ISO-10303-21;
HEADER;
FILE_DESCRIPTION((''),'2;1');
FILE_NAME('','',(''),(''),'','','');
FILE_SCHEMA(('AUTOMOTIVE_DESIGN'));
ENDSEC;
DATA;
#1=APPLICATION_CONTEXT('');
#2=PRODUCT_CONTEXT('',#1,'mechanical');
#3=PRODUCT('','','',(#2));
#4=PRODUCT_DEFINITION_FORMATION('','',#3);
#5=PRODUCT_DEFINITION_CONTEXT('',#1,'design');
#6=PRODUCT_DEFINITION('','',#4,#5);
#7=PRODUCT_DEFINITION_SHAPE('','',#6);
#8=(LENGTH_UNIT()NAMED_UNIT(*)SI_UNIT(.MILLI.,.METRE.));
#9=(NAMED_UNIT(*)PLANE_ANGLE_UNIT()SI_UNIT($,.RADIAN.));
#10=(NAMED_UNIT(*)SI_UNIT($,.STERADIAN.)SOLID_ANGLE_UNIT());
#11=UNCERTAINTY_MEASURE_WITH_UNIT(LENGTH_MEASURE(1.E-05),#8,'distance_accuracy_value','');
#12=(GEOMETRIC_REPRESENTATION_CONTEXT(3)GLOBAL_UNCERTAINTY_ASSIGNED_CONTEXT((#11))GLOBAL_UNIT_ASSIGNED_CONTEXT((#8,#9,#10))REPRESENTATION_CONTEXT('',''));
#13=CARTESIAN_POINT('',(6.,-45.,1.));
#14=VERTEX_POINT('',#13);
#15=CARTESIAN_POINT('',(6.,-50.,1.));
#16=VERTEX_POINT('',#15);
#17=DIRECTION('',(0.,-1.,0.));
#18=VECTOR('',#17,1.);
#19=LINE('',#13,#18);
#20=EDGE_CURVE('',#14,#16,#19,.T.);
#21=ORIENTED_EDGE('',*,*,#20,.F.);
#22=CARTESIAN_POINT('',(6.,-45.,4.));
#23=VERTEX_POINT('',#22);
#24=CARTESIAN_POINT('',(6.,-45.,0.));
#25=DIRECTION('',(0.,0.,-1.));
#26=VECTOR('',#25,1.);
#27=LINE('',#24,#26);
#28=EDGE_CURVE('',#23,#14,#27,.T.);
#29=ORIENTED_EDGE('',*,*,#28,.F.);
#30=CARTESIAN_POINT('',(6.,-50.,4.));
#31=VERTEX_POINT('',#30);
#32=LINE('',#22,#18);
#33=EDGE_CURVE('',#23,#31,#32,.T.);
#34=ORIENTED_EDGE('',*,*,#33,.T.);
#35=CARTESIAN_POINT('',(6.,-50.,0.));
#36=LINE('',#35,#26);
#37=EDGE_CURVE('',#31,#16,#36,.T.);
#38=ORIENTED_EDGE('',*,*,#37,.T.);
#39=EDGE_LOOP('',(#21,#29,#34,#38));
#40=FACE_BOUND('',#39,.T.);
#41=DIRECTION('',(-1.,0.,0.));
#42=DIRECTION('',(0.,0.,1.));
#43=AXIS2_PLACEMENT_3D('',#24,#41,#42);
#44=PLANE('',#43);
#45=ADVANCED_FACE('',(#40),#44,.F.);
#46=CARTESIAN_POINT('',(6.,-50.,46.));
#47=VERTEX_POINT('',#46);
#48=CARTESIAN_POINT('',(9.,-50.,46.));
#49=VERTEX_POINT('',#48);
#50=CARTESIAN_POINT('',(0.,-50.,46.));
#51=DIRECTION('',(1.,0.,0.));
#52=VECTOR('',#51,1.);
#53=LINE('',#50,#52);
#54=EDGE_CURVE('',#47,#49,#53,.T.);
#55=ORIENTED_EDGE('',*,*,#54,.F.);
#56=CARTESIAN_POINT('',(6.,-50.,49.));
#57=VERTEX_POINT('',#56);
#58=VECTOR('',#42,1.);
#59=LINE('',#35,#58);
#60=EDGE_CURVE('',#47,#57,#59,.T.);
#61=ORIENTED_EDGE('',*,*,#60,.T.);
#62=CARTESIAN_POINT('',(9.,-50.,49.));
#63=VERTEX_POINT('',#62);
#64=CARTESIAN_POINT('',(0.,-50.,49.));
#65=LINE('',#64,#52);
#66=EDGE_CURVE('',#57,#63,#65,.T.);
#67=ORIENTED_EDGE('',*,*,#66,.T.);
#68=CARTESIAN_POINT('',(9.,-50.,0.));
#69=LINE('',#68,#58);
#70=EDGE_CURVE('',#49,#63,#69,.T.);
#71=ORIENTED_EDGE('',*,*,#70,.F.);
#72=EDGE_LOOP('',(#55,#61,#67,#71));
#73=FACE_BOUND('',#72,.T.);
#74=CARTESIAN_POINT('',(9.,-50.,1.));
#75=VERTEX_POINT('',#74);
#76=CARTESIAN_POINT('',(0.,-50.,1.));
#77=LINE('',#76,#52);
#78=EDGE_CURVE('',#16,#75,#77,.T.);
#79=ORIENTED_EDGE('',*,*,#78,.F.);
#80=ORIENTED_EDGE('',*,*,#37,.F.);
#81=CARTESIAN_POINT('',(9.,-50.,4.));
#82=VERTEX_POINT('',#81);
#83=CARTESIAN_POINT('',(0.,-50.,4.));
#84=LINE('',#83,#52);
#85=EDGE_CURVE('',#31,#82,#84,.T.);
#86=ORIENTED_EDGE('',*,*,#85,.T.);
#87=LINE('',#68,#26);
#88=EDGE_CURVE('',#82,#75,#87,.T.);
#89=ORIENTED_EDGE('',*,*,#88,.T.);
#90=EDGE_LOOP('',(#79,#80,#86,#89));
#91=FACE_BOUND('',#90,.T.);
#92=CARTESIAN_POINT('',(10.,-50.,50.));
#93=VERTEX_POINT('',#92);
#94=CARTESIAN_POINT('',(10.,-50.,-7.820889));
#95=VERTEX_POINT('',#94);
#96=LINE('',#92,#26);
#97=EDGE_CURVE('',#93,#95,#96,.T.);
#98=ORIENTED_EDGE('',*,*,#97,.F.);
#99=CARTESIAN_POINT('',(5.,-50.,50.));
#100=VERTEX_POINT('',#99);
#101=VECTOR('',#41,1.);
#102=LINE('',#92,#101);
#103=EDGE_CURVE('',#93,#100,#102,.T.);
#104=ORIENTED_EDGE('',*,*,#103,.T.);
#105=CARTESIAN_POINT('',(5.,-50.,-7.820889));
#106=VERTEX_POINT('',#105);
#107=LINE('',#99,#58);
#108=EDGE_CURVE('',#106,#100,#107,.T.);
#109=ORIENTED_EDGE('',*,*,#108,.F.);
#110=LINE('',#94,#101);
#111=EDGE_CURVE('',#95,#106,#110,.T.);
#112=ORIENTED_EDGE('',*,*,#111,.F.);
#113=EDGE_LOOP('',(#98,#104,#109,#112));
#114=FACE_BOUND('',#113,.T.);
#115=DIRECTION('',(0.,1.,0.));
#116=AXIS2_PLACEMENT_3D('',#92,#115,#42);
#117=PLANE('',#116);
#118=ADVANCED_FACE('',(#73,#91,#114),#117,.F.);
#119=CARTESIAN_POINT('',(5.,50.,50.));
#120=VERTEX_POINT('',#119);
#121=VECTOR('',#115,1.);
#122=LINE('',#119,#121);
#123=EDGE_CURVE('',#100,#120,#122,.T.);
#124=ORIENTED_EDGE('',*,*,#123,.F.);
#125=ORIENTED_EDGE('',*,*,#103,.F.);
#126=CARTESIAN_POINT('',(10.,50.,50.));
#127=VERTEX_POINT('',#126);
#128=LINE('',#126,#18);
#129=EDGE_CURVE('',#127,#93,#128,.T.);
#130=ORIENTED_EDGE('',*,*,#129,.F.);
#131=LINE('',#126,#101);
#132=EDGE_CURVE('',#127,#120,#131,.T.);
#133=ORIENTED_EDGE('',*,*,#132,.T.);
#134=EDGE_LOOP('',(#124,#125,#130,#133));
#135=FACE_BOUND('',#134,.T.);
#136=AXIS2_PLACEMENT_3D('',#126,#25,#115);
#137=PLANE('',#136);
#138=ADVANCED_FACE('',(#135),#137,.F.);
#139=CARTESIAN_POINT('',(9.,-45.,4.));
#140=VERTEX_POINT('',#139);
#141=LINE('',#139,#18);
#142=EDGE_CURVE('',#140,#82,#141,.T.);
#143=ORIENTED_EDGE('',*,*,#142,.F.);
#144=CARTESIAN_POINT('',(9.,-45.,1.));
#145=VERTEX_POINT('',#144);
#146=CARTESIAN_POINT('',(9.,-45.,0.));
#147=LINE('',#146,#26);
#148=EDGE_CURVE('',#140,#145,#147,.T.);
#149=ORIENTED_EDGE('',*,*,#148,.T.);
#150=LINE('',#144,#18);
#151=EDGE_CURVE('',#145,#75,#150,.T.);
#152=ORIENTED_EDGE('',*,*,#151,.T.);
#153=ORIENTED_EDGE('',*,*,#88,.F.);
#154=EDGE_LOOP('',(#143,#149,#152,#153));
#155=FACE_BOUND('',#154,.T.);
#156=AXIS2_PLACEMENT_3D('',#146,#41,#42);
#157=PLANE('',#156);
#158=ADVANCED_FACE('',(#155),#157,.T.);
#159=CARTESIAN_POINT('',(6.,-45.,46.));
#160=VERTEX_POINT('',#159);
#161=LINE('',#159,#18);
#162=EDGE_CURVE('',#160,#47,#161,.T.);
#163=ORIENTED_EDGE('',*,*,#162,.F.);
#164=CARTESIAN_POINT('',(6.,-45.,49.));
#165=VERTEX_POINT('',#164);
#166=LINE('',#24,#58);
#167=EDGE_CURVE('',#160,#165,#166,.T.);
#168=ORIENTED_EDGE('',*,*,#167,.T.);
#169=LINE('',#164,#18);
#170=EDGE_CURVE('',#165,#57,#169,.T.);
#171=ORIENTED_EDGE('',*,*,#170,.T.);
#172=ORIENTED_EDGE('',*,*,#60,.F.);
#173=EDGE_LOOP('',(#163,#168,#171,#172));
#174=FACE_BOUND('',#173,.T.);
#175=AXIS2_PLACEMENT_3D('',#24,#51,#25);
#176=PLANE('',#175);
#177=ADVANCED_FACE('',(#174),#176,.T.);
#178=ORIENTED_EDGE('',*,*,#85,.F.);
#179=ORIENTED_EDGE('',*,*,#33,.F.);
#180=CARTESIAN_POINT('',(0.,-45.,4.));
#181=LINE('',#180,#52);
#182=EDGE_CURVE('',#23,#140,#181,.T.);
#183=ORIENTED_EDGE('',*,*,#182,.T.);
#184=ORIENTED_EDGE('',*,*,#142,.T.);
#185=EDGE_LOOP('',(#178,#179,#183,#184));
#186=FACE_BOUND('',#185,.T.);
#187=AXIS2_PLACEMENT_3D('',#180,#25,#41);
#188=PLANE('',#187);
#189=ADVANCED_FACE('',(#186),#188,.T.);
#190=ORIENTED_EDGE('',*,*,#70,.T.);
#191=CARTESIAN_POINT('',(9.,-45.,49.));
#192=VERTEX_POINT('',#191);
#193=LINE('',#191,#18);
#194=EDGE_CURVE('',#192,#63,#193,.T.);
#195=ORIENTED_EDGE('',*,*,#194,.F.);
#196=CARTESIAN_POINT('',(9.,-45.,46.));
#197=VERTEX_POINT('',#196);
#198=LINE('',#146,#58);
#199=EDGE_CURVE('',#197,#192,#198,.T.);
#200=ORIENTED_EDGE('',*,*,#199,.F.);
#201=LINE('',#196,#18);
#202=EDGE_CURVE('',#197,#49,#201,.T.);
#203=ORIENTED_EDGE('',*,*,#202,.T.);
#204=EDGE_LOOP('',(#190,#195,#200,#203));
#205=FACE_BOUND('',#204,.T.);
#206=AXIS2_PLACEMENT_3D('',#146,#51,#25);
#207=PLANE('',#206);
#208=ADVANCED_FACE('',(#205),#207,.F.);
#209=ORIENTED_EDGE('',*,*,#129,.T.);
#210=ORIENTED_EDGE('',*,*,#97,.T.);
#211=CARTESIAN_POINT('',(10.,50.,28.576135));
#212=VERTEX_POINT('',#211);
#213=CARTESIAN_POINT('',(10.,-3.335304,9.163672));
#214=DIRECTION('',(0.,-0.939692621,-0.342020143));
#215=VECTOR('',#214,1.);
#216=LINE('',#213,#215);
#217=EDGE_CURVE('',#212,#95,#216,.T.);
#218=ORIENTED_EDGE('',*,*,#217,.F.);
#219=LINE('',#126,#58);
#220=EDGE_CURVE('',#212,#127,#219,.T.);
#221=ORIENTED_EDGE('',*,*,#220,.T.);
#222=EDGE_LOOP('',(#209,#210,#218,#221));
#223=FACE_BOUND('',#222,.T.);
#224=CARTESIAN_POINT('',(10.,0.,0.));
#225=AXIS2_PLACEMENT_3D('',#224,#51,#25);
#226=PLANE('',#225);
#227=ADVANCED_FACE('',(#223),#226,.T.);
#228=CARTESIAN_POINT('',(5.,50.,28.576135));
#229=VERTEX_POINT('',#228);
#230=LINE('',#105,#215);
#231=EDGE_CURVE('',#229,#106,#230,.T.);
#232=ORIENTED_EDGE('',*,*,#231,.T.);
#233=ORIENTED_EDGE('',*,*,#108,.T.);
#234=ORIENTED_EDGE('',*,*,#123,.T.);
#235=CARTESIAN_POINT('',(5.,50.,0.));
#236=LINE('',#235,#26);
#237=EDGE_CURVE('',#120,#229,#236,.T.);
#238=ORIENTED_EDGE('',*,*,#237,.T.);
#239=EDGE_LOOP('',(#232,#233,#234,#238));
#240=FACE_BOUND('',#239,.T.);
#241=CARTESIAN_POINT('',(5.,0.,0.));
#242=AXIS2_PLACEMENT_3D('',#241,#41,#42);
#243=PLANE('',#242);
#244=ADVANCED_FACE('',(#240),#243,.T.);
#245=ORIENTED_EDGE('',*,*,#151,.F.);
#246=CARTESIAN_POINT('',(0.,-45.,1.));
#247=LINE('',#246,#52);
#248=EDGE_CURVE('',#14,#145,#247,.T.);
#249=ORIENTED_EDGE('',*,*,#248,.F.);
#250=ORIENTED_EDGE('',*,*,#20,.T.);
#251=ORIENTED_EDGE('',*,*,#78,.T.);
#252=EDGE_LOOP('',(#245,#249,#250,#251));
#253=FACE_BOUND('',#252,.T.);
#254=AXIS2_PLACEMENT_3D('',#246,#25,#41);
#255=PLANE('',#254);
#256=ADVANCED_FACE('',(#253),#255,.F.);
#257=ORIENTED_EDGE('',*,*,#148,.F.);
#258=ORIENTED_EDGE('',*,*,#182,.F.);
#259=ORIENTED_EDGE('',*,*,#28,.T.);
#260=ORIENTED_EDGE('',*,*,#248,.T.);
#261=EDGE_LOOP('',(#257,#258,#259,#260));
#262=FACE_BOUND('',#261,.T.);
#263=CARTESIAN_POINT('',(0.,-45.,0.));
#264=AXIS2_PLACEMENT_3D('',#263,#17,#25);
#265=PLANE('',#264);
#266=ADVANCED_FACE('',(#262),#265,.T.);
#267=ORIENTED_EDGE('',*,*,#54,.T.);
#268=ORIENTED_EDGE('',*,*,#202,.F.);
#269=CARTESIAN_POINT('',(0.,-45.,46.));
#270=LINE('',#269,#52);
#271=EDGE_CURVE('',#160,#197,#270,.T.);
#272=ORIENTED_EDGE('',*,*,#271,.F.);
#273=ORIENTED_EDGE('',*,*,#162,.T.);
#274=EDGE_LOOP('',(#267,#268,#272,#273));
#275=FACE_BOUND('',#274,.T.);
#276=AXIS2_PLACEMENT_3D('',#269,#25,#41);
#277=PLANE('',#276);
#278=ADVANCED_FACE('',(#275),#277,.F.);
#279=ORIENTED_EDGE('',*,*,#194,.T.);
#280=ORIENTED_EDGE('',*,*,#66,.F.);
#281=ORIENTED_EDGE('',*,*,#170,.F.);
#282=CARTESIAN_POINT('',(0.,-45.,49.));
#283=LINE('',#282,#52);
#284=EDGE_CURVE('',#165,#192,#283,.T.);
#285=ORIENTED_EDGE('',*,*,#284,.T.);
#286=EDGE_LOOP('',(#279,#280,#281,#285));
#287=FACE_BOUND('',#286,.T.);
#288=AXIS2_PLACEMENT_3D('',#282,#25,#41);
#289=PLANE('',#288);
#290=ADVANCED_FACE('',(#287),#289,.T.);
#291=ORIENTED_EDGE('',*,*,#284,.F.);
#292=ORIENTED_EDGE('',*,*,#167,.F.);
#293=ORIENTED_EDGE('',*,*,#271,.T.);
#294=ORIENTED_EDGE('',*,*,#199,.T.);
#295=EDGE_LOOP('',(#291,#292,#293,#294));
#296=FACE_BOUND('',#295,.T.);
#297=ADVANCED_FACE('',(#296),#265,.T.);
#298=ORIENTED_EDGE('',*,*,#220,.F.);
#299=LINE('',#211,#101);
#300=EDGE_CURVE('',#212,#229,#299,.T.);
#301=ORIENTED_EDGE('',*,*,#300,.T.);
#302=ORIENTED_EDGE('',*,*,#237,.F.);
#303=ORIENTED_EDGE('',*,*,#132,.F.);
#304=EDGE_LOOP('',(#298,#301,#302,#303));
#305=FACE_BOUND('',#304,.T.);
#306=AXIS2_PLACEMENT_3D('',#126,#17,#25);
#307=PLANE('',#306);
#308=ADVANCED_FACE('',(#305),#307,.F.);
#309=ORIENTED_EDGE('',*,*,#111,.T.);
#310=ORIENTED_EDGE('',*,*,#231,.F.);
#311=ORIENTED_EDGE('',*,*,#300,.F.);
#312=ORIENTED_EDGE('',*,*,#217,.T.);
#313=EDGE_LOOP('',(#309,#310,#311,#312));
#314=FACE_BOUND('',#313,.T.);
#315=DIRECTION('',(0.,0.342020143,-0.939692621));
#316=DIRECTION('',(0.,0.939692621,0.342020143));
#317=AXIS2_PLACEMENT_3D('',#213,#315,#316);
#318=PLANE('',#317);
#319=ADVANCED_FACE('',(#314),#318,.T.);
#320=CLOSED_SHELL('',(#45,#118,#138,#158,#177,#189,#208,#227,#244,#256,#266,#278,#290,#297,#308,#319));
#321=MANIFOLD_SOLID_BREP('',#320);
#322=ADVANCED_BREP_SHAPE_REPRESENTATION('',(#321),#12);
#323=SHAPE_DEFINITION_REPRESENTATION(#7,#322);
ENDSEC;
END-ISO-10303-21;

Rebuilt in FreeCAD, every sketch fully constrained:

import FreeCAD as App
import Part
import Sketcher

V = App.Vector
Q = App.Units.Quantity


def add_polygon(sketch, points):
    """Adds a closed chain of lines whose ends are joined by coincident constraints."""
    first, n = sketch.GeometryCount, len(points)
    for a, b in zip(points, points[1:] + points[:1]):
        sketch.addGeometry(Part.LineSegment(App.Vector(*a, 0), App.Vector(*b, 0)), False)
    for i in range(n):
        sketch.addConstraint(Sketcher.Constraint("Coincident", first + i, 2, first + (i + 1) % n, 1))

doc = App.newDocument("Part")
params = doc.addObject("Spreadsheet::Sheet", "Params")
for row, (alias, value) in enumerate([
    ("sketch1_width", "100 mm"),
    ("pad1_length", "10 mm"),
    ("sketch2_height", "5 mm"),
    ("pocket1_length", "5 mm"),
    ("sketch3_width", "100 mm"),
    ("pocket2_length", "10 mm"),
    ("sketch4_width", "100 mm"),
    ("pocket3_length", "5 mm"),
    ("sketch5_width", "3 mm"),
    ("pocket4_length", "5 mm"),
], start=1):
    params.set(f"A{row}", alias)
    params.set(f"B{row}", "=" + value)
    params.setAlias(f"B{row}", alias)

body = doc.addObject("PartDesign::Body", "Body")

sketch1 = body.newObject("Sketcher::SketchObject", "Sketch")
sketch1.AttachmentSupport = (doc.getObject("YZ_Plane"), [""])
sketch1.MapMode = "FlatFace"
add_polygon(sketch1, [(50, 50), (-50, 50), (-50, -50), (50, -50)])
sketch1.addConstraint([
    Sketcher.Constraint("Horizontal", 0),
    Sketcher.Constraint("Vertical", 1),
    Sketcher.Constraint("Horizontal", 2),
    Sketcher.Constraint("Vertical", 3),
    Sketcher.Constraint("Symmetric", 0, 2, 2, 2, -1, 1),
    Sketcher.Constraint("Equal", 2, 1),
    Sketcher.Constraint("DistanceX", 0, 2, 0, 1, 100.0),
])
sketch1.setExpression("Constraints[10]", "Params.sketch1_width")
pad1 = body.newObject("PartDesign::Pad", "Pad")
pad1.Profile = sketch1
pad1.setExpression("Length", "Params.pad1_length")

sketch2 = body.newObject("Sketcher::SketchObject", "Sketch001")
sketch2.AttachmentSupport = (doc.getObject("YZ_Plane"), [""])
sketch2.MapMode = "FlatFace"
add_polygon(sketch2, [(50, 33.897023), (-45, -0.680149), (-45, 4.319851), (50, 38.897023)])
sketch2.addConstraint([
    Sketcher.Constraint("Vertical", 1),
    Sketcher.Constraint("Vertical", 3),
    Sketcher.Constraint("Parallel", 0, 2),
    Sketcher.Constraint("DistanceY", 1, 1, 1, 2, 5.0),
    Sketcher.Constraint("Angle", 0, Q("-160 deg")),
    Sketcher.Constraint("DistanceX", 0, 2, -1, 1, 45.0),
    Sketcher.Constraint("DistanceX", -1, 1, 2, 2, 50.0),
    Sketcher.Constraint("DistanceY", 0, 2, -1, 1, 0.680149),
])
sketch2.setExpression("Constraints[7]", "Params.sketch2_height")
pocket1 = body.newObject("PartDesign::Pocket", "Pocket")
pocket1.Profile = sketch2
pocket1.setExpression("Length", "Params.pocket1_length")
pocket1.Reversed = True

sketch3 = body.newObject("Sketcher::SketchObject", "Sketch002")
sketch3.AttachmentSupport = (doc.getObject("YZ_Plane"), [""])
sketch3.MapMode = "FlatFace"
add_polygon(sketch3, [(50, 28.576135), (50, -50), (-50, -50), (-50, -7.820889), (-45, -6.001038), (45, 26.756283)])
sketch3.addConstraint([
    Sketcher.Constraint("Vertical", 0),
    Sketcher.Constraint("Horizontal", 1),
    Sketcher.Constraint("Vertical", 2),
    Sketcher.Constraint("Parallel", 3, 4),
    Sketcher.Constraint("Parallel", 4, 5),
    Sketcher.Constraint("Equal", 3, 5),
    Sketcher.Constraint("DistanceX", 1, 2, 1, 1, 100.0),
    Sketcher.Constraint("Angle", 3, Q("20 deg")),
    Sketcher.Constraint("DistanceX", -1, 1, 0, 2, 50.0),
    Sketcher.Constraint("DistanceY", 0, 2, -1, 1, 50.0),
    Sketcher.Constraint("DistanceX", 3, 2, -1, 1, 45.0),
    Sketcher.Constraint("DistanceY", 2, 1, 2, 2, 42.179111),
])
sketch3.setExpression("Constraints[12]", "Params.sketch3_width")
pocket2 = body.newObject("PartDesign::Pocket", "Pocket001")
pocket2.Profile = sketch3
pocket2.setExpression("Length", "Params.pocket2_length")
pocket2.Reversed = True

sketch4 = body.newObject("Sketcher::SketchObject", "Sketch003")
sketch4.AttachmentSupport = (doc.getObject("YZ_Plane"), [""])
sketch4.MapMode = "FlatFace"
add_polygon(sketch4, [(50, 50), (50, 28.576135), (-50, -7.820889), (-50, 50)])
sketch4.addConstraint([
    Sketcher.Constraint("Vertical", 0),
    Sketcher.Constraint("Vertical", 2),
    Sketcher.Constraint("Horizontal", 3),
    Sketcher.Constraint("DistanceX", 3, 1, 3, 2, 100.0),
    Sketcher.Constraint("Angle", 1, Q("-160 deg")),
    Sketcher.Constraint("DistanceX", -1, 1, 0, 2, 50.0),
    Sketcher.Constraint("DistanceY", -1, 1, 2, 2, 50.0),
    Sketcher.Constraint("DistanceY", 2, 1, 2, 2, 57.820889),
])
sketch4.setExpression("Constraints[7]", "Params.sketch4_width")
pocket3 = body.newObject("PartDesign::Pocket", "Pocket002")
pocket3.Profile = sketch4
pocket3.setExpression("Length", "Params.pocket3_length")
pocket3.Reversed = True

sketch5 = body.newObject("Sketcher::SketchObject", "Sketch004")
sketch5.AttachmentSupport = (doc.getObject("XZ_Plane"), [""])
sketch5.MapMode = "FlatFace"
sketch5.AttachmentOffset = App.Placement(V(0, 0, 50), App.Rotation())
add_polygon(sketch5, [(6, 49), (6, 46), (9, 46), (9, 49)])
add_polygon(sketch5, [(6, 4), (6, 1), (9, 1), (9, 4)])
sketch5.addConstraint([
    Sketcher.Constraint("Vertical", 0),
    Sketcher.Constraint("Horizontal", 1),
    Sketcher.Constraint("Vertical", 2),
    Sketcher.Constraint("Horizontal", 3),
    Sketcher.Constraint("Vertical", 4),
    Sketcher.Constraint("Horizontal", 5),
    Sketcher.Constraint("Vertical", 6),
    Sketcher.Constraint("Horizontal", 7),
    Sketcher.Constraint("Vertical", 3, 2, 4, 2),
    Sketcher.Constraint("Vertical", 2, 2, 5, 2),
    Sketcher.Constraint("Equal", 7, 0),
    Sketcher.Constraint("Equal", 2, 4),
    Sketcher.Constraint("DistanceX", 1, 1, 1, 2, 3.0),
    Sketcher.Constraint("DistanceX", -1, 1, 0, 2, 6.0),
    Sketcher.Constraint("DistanceY", -1, 1, 0, 2, 46.0),
    Sketcher.Constraint("DistanceY", -1, 1, 4, 2, 1.0),
])
sketch5.setExpression("Constraints[20]", "Params.sketch5_width")
pocket4 = body.newObject("PartDesign::Pocket", "Pocket003")
pocket4.Profile = sketch5
pocket4.setExpression("Length", "Params.pocket4_length")

doc.recompute()
